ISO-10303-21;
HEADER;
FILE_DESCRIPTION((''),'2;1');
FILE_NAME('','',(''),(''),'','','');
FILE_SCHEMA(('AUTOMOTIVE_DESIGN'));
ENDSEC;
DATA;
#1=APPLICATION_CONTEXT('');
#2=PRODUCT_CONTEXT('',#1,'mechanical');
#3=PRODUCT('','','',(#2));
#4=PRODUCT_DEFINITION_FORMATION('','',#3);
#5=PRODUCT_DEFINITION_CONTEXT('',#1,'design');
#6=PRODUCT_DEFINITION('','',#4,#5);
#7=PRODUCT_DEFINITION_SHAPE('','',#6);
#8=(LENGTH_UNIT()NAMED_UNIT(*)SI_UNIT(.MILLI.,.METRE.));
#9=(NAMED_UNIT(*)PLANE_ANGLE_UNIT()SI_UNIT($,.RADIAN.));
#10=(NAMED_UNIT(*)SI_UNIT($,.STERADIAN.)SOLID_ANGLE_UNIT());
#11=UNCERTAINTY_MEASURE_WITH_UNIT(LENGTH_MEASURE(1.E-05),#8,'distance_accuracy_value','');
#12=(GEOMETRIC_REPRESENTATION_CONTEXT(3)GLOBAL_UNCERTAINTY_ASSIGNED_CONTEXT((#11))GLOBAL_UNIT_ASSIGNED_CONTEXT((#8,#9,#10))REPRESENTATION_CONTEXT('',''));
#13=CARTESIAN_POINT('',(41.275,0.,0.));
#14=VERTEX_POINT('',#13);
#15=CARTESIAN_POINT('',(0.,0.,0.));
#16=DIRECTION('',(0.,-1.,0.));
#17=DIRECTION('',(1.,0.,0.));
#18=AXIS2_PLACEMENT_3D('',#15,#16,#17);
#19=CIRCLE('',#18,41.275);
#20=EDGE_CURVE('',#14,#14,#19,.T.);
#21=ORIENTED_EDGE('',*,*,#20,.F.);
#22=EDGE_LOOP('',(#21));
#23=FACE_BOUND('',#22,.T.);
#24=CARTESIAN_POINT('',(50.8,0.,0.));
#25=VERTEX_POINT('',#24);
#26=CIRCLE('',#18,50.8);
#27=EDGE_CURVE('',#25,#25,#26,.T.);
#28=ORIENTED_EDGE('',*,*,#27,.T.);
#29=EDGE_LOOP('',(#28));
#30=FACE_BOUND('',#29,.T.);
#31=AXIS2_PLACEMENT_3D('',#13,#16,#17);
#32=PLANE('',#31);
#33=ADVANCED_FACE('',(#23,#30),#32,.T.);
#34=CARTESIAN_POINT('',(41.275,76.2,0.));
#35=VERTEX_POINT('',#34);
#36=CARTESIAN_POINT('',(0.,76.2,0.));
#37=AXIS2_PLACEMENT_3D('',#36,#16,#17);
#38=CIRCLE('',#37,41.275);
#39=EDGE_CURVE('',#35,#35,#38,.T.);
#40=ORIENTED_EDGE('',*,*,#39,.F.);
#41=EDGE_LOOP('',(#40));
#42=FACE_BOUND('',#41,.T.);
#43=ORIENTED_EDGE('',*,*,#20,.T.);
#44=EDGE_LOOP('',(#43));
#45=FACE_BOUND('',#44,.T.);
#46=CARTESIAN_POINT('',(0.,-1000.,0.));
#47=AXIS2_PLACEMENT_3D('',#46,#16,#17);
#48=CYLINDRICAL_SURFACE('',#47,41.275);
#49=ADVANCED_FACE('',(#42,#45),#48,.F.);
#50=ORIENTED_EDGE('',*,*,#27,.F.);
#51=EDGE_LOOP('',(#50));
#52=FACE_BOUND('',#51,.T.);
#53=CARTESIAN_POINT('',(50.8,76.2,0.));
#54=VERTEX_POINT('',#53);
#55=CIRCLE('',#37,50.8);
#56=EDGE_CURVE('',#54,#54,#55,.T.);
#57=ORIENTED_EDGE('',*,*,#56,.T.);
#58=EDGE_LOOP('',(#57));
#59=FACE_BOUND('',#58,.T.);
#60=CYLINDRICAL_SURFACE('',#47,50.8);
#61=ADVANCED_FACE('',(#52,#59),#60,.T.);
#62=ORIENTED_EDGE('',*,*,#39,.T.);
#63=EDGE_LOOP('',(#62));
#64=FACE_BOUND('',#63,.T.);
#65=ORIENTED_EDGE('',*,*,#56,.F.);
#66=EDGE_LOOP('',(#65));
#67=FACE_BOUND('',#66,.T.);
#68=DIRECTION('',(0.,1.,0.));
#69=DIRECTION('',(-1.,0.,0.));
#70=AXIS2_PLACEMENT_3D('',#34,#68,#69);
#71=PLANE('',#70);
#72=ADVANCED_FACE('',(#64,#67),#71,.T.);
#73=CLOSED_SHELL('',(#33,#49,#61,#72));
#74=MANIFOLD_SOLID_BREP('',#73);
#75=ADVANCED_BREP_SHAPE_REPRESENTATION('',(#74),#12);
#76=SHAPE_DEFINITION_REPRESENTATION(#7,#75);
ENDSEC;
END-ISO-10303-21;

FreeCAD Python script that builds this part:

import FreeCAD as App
import Part
import Sketcher
from FreeCAD import Vector
Q = App.Units.Quantity

doc = App.newDocument("Part")
body = doc.addObject("PartDesign::Body", "Body")

# Sketch on XY plane
sketch1 = body.newObject("Sketcher::SketchObject", "Sketch")
sketch1.AttachmentSupport = (doc.getObject("XY_Plane"), [""])
sketch1.MapMode = "FlatFace"
sketch1.addGeometry([
    Part.LineSegment(Vector(41, 76, 0), Vector(41, 0, 0)),
    Part.LineSegment(Vector(41, 0, 0), Vector(51, 0, 0)),
    Part.LineSegment(Vector(51, 0, 0), Vector(51, 76, 0)),
    Part.LineSegment(Vector(51, 76, 0), Vector(41, 76, 0)),
], False)
sketch1.addConstraint([
    Sketcher.Constraint("Coincident", 0, 2, 1, 1),
    Sketcher.Constraint("Coincident", 1, 2, 2, 1),
    Sketcher.Constraint("Coincident", 2, 2, 3, 1),
    Sketcher.Constraint("Coincident", 3, 2, 0, 1),
    Sketcher.Constraint("Vertical", 0),
    Sketcher.Constraint("Horizontal", 1),
    Sketcher.Constraint("Vertical", 2),
    Sketcher.Constraint("Horizontal", 3),
    Sketcher.Constraint("PointOnObject", 0, 2, -1),
    Sketcher.Constraint("DistanceY", 0, 2, 0, 1, Q("3 in")),
    Sketcher.Constraint("DistanceX", -1, 1, 1, 2, Q("2 in")),
    Sketcher.Constraint("DistanceX", 1, 1, 1, 2, Q("0.375 in")),
])
revolution = body.newObject("PartDesign::Revolution", "Revolution")
revolution.Profile = sketch1
revolution.ReferenceAxis = (sketch1, ["V_Axis"])
revolution.Angle = 360

doc.recompute()
